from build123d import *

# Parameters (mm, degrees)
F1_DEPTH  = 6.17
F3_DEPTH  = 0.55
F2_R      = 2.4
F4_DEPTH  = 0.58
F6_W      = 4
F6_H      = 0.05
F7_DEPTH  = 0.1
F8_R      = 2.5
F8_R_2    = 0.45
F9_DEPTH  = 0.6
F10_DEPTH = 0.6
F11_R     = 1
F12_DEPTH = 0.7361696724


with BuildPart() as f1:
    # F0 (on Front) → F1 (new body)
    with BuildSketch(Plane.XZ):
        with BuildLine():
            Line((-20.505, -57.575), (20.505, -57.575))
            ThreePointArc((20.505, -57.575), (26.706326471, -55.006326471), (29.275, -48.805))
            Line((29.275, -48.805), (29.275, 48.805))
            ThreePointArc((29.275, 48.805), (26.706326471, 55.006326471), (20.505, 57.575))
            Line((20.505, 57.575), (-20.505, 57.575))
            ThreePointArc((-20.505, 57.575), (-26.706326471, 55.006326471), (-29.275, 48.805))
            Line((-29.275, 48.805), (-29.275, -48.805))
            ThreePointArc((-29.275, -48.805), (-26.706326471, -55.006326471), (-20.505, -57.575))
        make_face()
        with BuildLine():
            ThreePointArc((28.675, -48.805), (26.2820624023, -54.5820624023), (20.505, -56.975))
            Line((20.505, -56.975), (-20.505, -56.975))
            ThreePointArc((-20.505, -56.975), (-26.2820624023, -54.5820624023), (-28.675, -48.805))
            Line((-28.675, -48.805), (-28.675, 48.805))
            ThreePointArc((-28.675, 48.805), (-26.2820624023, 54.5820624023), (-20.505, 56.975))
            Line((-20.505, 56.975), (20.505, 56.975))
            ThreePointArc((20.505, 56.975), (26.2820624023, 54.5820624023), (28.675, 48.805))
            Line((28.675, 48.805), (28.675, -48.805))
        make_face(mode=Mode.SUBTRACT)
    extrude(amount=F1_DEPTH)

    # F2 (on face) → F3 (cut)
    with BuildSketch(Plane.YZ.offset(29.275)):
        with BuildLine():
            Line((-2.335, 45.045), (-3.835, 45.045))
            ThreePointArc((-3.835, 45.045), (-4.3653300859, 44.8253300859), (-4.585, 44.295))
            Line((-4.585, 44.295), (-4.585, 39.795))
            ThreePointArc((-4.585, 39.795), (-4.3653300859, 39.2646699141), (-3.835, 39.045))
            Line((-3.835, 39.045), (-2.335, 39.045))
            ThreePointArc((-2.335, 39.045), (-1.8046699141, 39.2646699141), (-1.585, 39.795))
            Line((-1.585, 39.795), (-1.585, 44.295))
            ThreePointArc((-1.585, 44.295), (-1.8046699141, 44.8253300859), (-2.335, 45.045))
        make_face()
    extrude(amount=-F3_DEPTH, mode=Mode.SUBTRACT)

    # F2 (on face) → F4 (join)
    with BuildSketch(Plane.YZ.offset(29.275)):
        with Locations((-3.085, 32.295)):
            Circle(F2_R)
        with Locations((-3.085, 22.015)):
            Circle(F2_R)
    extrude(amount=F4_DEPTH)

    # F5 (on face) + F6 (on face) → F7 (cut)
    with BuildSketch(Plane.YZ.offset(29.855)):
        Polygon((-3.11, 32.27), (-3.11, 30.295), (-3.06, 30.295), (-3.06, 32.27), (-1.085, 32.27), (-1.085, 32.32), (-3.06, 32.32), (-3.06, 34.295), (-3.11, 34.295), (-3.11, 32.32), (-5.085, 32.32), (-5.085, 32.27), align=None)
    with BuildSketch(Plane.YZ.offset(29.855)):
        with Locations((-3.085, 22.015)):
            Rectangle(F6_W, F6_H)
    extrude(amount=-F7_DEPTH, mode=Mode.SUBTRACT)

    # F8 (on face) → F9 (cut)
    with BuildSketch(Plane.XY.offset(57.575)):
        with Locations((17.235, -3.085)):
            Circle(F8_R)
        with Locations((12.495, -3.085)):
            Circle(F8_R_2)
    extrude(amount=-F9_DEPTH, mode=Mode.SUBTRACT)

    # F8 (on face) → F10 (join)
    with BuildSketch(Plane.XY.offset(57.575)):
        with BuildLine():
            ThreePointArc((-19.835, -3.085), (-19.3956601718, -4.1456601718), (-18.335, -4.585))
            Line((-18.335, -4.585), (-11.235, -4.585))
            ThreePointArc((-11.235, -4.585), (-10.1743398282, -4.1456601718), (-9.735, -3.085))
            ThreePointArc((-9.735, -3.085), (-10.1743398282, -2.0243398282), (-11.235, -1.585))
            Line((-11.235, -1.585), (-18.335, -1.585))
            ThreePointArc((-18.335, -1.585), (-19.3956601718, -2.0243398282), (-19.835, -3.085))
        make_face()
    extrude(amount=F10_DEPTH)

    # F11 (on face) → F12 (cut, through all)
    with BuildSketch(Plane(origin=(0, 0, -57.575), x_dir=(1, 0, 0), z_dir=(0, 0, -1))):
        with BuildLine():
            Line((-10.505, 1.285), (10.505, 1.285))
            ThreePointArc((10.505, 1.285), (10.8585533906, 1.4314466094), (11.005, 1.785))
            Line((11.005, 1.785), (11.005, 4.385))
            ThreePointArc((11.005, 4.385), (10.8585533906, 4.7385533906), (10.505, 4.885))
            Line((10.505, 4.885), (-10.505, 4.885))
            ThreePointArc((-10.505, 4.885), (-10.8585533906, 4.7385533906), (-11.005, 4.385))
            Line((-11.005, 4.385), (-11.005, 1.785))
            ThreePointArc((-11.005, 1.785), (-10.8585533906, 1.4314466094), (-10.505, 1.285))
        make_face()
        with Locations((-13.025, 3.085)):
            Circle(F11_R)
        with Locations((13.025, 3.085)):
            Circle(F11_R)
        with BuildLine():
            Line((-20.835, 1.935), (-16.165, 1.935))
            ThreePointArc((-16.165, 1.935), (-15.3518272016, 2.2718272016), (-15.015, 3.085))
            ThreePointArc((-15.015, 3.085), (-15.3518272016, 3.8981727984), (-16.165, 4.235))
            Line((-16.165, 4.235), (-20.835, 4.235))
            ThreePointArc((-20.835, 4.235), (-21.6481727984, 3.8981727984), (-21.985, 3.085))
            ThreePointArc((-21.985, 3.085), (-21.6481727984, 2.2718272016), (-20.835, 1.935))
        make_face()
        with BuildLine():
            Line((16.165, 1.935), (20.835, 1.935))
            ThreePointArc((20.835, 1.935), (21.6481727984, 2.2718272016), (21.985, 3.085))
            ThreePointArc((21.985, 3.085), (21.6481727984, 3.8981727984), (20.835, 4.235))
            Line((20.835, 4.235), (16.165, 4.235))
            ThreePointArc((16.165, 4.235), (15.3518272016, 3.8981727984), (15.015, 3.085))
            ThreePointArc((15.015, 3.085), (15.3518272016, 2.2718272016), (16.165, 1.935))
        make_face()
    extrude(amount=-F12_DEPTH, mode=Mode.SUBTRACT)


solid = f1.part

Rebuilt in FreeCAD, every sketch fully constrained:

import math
import FreeCAD as App
import Part
import Sketcher


def add_polygon(sketch, points):
    """Adds a closed chain of lines whose ends are joined by coincident constraints."""
    first, n = sketch.GeometryCount, len(points)
    for a, b in zip(points, points[1:] + points[:1]):
        sketch.addGeometry(Part.LineSegment(App.Vector(*a, 0), App.Vector(*b, 0)), False)
    for i in range(n):
        sketch.addConstraint(Sketcher.Constraint("Coincident", first + i, 2, first + (i + 1) % n, 1))

doc = App.newDocument("Part")
params = doc.addObject("Spreadsheet::Sheet", "Params")
for row, (alias, value) in enumerate([
    ("sketch1_radius", "8.77 mm"),
    ("sketch1_radius2", "8.17 mm"),
    ("sketch1_width", "41.01 mm"),
    ("sketch1_height", "97.61 mm"),
    ("pad1_length", "6.17 mm"),
    ("sketch2_radius", "0.75 mm"),
    ("sketch2_width", "1.5 mm"),
    ("sketch2_height", "4.5 mm"),
    ("pocket1_length", "0.55 mm"),
    ("sketch3_diameter", "4.8 mm"),
    ("pad2_length", "0.58 mm"),
    ("sketch4_width", "4 mm"),
    ("sketch4_width2", "0.05 mm"),
    ("pocket2_length", "0.1 mm"),
    ("sketch5_diameter", "5 mm"),
    ("sketch5_diameter2", "0.9 mm"),
    ("pocket3_length", "0.6 mm"),
    ("sketch6_radius", "1.5 mm"),
    ("sketch6_width", "7.1 mm"),
    ("pad3_length", "0.6 mm"),
    ("sketch7_diameter", "2 mm"),
    ("sketch7_radius", "0.5 mm"),
    ("sketch7_radius2", "1.15 mm"),
    ("sketch7_height", "2.6 mm"),
    ("sketch7_width", "21.01 mm"),
    ("pocket4_length", "0.73617 mm"),
], start=1):
    params.set(f"A{row}", alias)
    params.set(f"B{row}", "=" + value)
    params.setAlias(f"B{row}", alias)

body = doc.addObject("PartDesign::Body", "Body")

sketch1 = body.newObject("Sketcher::SketchObject", "Sketch")
sketch1.AttachmentSupport = (doc.getObject("XZ_Plane"), [""])
sketch1.MapMode = "FlatFace"
sketch1.addGeometry([
    Part.LineSegment(App.Vector(-21, -58, 0), App.Vector(21, -58, 0)),
    Part.ArcOfCircle(Part.Circle(App.Vector(21, -49, 0), App.Vector(0, 0, 1), 9), math.radians(-90), math.radians(0)),
    Part.LineSegment(App.Vector(29, -49, 0), App.Vector(29, 49, 0)),
    Part.ArcOfCircle(Part.Circle(App.Vector(21, 49, 0), App.Vector(0, 0, 1), 9), math.radians(0), math.radians(90)),
    Part.LineSegment(App.Vector(21, 58, 0), App.Vector(-21, 58, 0)),
    Part.ArcOfCircle(Part.Circle(App.Vector(-21, 49, 0), App.Vector(0, 0, 1), 9), math.radians(90), math.radians(180)),
    Part.LineSegment(App.Vector(-29, 49, 0), App.Vector(-29, -49, 0)),
    Part.ArcOfCircle(Part.Circle(App.Vector(-21, -49, 0), App.Vector(0, 0, 1), 9), math.radians(180), math.radians(270)),
    Part.LineSegment(App.Vector(29, 49, 0), App.Vector(29, -49, 0)),
    Part.ArcOfCircle(Part.Circle(App.Vector(21, -49, 0), App.Vector(0, 0, 1), 8), math.radians(-90), math.radians(0)),
    Part.LineSegment(App.Vector(21, -57, 0), App.Vector(-21, -57, 0)),
    Part.ArcOfCircle(Part.Circle(App.Vector(-21, -49, 0), App.Vector(0, 0, 1), 8), math.radians(180), math.radians(270)),
    Part.LineSegment(App.Vector(-29, -49, 0), App.Vector(-29, 49, 0)),
    Part.ArcOfCircle(Part.Circle(App.Vector(-21, 49, 0), App.Vector(0, 0, 1), 8), math.radians(90), math.radians(180)),
    Part.LineSegment(App.Vector(-21, 57, 0), App.Vector(21, 57, 0)),
    Part.ArcOfCircle(Part.Circle(App.Vector(21, 49, 0), App.Vector(0, 0, 1), 8), math.radians(0), math.radians(90)),
], False)
sketch1.addConstraint([
    Sketcher.Constraint("Tangent", 0, 2, 1, 1),
    Sketcher.Constraint("Tangent", 1, 2, 2, 1),
    Sketcher.Constraint("Tangent", 2, 2, 3, 1),
    Sketcher.Constraint("Tangent", 3, 2, 4, 1),
    Sketcher.Constraint("Tangent", 4, 2, 5, 1),
    Sketcher.Constraint("Tangent", 5, 2, 6, 1),
    Sketcher.Constraint("Tangent", 6, 2, 7, 1),
    Sketcher.Constraint("Tangent", 7, 2, 0, 1),
    Sketcher.Constraint("Tangent", 8, 2, 9, 2),
    Sketcher.Constraint("Tangent", 9, 1, 10, 1),
    Sketcher.Constraint("Tangent", 10, 2, 11, 2),
    Sketcher.Constraint("Tangent", 11, 1, 12, 1),
    Sketcher.Constraint("Tangent", 12, 2, 13, 2),
    Sketcher.Constraint("Tangent", 13, 1, 14, 1),
    Sketcher.Constraint("Tangent", 14, 2, 15, 2),
    Sketcher.Constraint("Tangent", 15, 1, 8, 1),
    Sketcher.Constraint("Horizontal", 0),
    Sketcher.Constraint("Vertical", 2),
    Sketcher.Constraint("Horizontal", 4),
    Sketcher.Constraint("Vertical", 6),
    Sketcher.Constraint("Vertical", 8),
    Sketcher.Constraint("Horizontal", 10),
    Sketcher.Constraint("Vertical", 12),
    Sketcher.Constraint("Horizontal", 14),
    Sketcher.Constraint("Coincident", 9, 3, 1, 3),
    Sketcher.Constraint("Coincident", 11, 3, 7, 3),
    Sketcher.Constraint("Coincident", 13, 3, 5, 3),
    Sketcher.Constraint("Equal", 1, 3),
    Sketcher.Constraint("Equal", 3, 5),
    Sketcher.Constraint("Equal", 5, 7),
    Sketcher.Constraint("Equal", 13, 15),
    Sketcher.Constraint("Symmetric", 1, 3, 5, 3, -1, 1),
    Sketcher.Constraint("Radius", 1, 8.77),
    Sketcher.Constraint("Radius", 9, 8.17),
    Sketcher.Constraint("DistanceX", 0, 1, 0, 2, 41.01),
    Sketcher.Constraint("DistanceY", 2, 1, 2, 2, 97.61),
])
sketch1.setExpression("Constraints[32]", "Params.sketch1_radius")
sketch1.setExpression("Constraints[33]", "Params.sketch1_radius2")
sketch1.setExpression("Constraints[34]", "Params.sketch1_width")
sketch1.setExpression("Constraints[35]", "Params.sketch1_height")
pad1 = body.newObject("PartDesign::Pad", "Pad")
pad1.Profile = sketch1
pad1.setExpression("Length", "Params.pad1_length")

sketch2 = body.newObject("Sketcher::SketchObject", "Sketch001")
sketch2.AttachmentSupport = (doc.getObject("YZ_Plane"), [""])
sketch2.MapMode = "FlatFace"
sketch2.AttachmentOffset = App.Placement(App.Vector(0, 0, 29.275), App.Rotation())
sketch2.addGeometry([
    Part.LineSegment(App.Vector(-2.3, 45, 0), App.Vector(-3.8, 45, 0)),
    Part.ArcOfCircle(Part.Circle(App.Vector(-3.8, 44.3, 0), App.Vector(0, 0, 1), 0.8), math.radians(90), math.radians(180)),
    Part.LineSegment(App.Vector(-4.6, 44.3, 0), App.Vector(-4.6, 39.8, 0)),
    Part.ArcOfCircle(Part.Circle(App.Vector(-3.8, 39.8, 0), App.Vector(0, 0, 1), 0.8), math.radians(180), math.radians(270)),
    Part.LineSegment(App.Vector(-3.8, 39, 0), App.Vector(-2.3, 39, 0)),
    Part.ArcOfCircle(Part.Circle(App.Vector(-2.3, 39.8, 0), App.Vector(0, 0, 1), 0.8), math.radians(-90), math.radians(0)),
    Part.LineSegment(App.Vector(-1.6, 39.8, 0), App.Vector(-1.6, 44.3, 0)),
    Part.ArcOfCircle(Part.Circle(App.Vector(-2.3, 44.3, 0), App.Vector(0, 0, 1), 0.8), math.radians(0), math.radians(90)),
], False)
sketch2.addConstraint([
    Sketcher.Constraint("Tangent", 0, 2, 1, 1),
    Sketcher.Constraint("Tangent", 1, 2, 2, 1),
    Sketcher.Constraint("Tangent", 2, 2, 3, 1),
    Sketcher.Constraint("Tangent", 3, 2, 4, 1),
    Sketcher.Constraint("Tangent", 4, 2, 5, 1),
    Sketcher.Constraint("Tangent", 5, 2, 6, 1),
    Sketcher.Constraint("Tangent", 6, 2, 7, 1),
    Sketcher.Constraint("Tangent", 7, 2, 0, 1),
    Sketcher.Constraint("Horizontal", 0),
    Sketcher.Constraint("Vertical", 2),
    Sketcher.Constraint("Horizontal", 4),
    Sketcher.Constraint("Vertical", 6),
    Sketcher.Constraint("Equal", 1, 3),
    Sketcher.Constraint("Equal", 3, 5),
    Sketcher.Constraint("Equal", 5, 7),
    Sketcher.Constraint("Radius", 1, 0.75),
    Sketcher.Constraint("DistanceX", 0, 2, 0, 1, 1.5),
    Sketcher.Constraint("DistanceY", 2, 2, 2, 1, 4.5),
    Sketcher.Constraint("DistanceX", 1, 3, -1, 1, 3.835),
    Sketcher.Constraint("DistanceY", -1, 1, 1, 3, 44.295),
])
sketch2.setExpression("Constraints[15]", "Params.sketch2_radius")
sketch2.setExpression("Constraints[16]", "Params.sketch2_width")
sketch2.setExpression("Constraints[17]", "Params.sketch2_height")
pocket1 = body.newObject("PartDesign::Pocket", "Pocket")
pocket1.Profile = sketch2
pocket1.setExpression("Length", "Params.pocket1_length")

sketch3 = body.newObject("Sketcher::SketchObject", "Sketch002")
sketch3.AttachmentSupport = (doc.getObject("YZ_Plane"), [""])
sketch3.MapMode = "FlatFace"
sketch3.AttachmentOffset = App.Placement(App.Vector(0, 0, 29.275), App.Rotation())
sketch3.addGeometry([
    Part.Circle(App.Vector(-3.1, 32.3, 0), App.Vector(0, 0, 1), 2.4),
    Part.Circle(App.Vector(-3.1, 22, 0), App.Vector(0, 0, 1), 2.4),
], False)
sketch3.addConstraint([
    Sketcher.Constraint("Equal", 0, 1),
    Sketcher.Constraint("Vertical", 0, 3, 1, 3),
    Sketcher.Constraint("Diameter", 0, 4.8),
    Sketcher.Constraint("DistanceY", 1, 3, 0, 3, 10.28),
    Sketcher.Constraint("DistanceX", 0, 3, -1, 1, 3.085),
    Sketcher.Constraint("DistanceY", -1, 1, 0, 3, 32.295),
])
sketch3.setExpression("Constraints[2]", "Params.sketch3_diameter")
pad2 = body.newObject("PartDesign::Pad", "Pad001")
pad2.Profile = sketch3
pad2.setExpression("Length", "Params.pad2_length")

sketch4 = body.newObject("Sketcher::SketchObject", "Sketch003")
sketch4.AttachmentSupport = (doc.getObject("YZ_Plane"), [""])
sketch4.MapMode = "FlatFace"
sketch4.AttachmentOffset = App.Placement(App.Vector(0, 0, 29.855), App.Rotation())
add_polygon(sketch4, [(-3.11, 32.27), (-3.11, 30.295), (-3.06, 30.295), (-3.06, 32.27), (-1.085, 32.27), (-1.085, 32.32), (-3.06, 32.32), (-3.06, 34.295), (-3.11, 34.295), (-3.11, 32.32), (-5.085, 32.32), (-5.085, 32.27)])
add_polygon(sketch4, [(-5.085, 22.04), (-5.085, 21.99), (-1.085, 21.99), (-1.085, 22.04)])
sketch4.addConstraint([
    Sketcher.Constraint("Vertical", 0),
    Sketcher.Constraint("Horizontal", 1),
    Sketcher.Constraint("Vertical", 2),
    Sketcher.Constraint("Horizontal", 3),
    Sketcher.Constraint("Vertical", 4),
    Sketcher.Constraint("Horizontal", 5),
    Sketcher.Constraint("Vertical", 6),
    Sketcher.Constraint("Horizontal", 7),
    Sketcher.Constraint("Vertical", 8),
    Sketcher.Constraint("Horizontal", 9),
    Sketcher.Constraint("Vertical", 10),
    Sketcher.Constraint("Horizontal", 11),
    Sketcher.Constraint("Vertical", 12),
    Sketcher.Constraint("Horizontal", 13),
    Sketcher.Constraint("Vertical", 14),
    Sketcher.Constraint("Horizontal", 15),
    Sketcher.Constraint("Horizontal", 5, 2, 8, 2),
    Sketcher.Constraint("Horizontal", 3, 2, 10, 2),
    Sketcher.Constraint("Vertical", 2, 2, 5, 2),
    Sketcher.Constraint("Vertical", 0, 2, 7, 2),
    Sketcher.Constraint("Vertical", 10, 2, 12, 2),
    Sketcher.Constraint("Vertical", 4, 2, 13, 2),
    Sketcher.Constraint("Equal", 5, 9),
    Sketcher.Constraint("Equal", 11, 0),
    Sketcher.Constraint("Equal", 7, 4),
    Sketcher.Constraint("Equal", 2, 6),
    Sketcher.Constraint("Equal", 10, 12),
    Sketcher.Constraint("DistanceX", 13, 1, 13, 2, 4.0),
    Sketcher.Constraint("DistanceX", 1, 1, 1, 2, 0.05),
    Sketcher.Constraint("DistanceX", 0, 2, -1, 1, 3.11),
    Sketcher.Constraint("DistanceY", -1, 1, 2, 2, 32.27),
    Sketcher.Constraint("DistanceY", -1, 1, 12, 2, 21.99),
])
sketch4.setExpression("Constraints[43]", "Params.sketch4_width")
sketch4.setExpression("Constraints[44]", "Params.sketch4_width2")
pocket2 = body.newObject("PartDesign::Pocket", "Pocket001")
pocket2.Profile = sketch4
pocket2.setExpression("Length", "Params.pocket2_length")

sketch5 = body.newObject("Sketcher::SketchObject", "Sketch004")
sketch5.AttachmentSupport = (doc.getObject("XY_Plane"), [""])
sketch5.MapMode = "FlatFace"
sketch5.AttachmentOffset = App.Placement(App.Vector(0, 0, 57.575), App.Rotation())
sketch5.addGeometry([
    Part.Circle(App.Vector(17.23, -3.08, 0), App.Vector(0, 0, 1), 2.5),
    Part.Circle(App.Vector(12.49, -3.08, 0), App.Vector(0, 0, 1), 0.45),
], False)
sketch5.addConstraint([
    Sketcher.Constraint("Horizontal", 0, 3, 1, 3),
    Sketcher.Constraint("Diameter", 0, 5.0),
    Sketcher.Constraint("Diameter", 1, 0.9),
    Sketcher.Constraint("DistanceX", 1, 3, 0, 3, 4.74),
    Sketcher.Constraint("DistanceX", -1, 1, 0, 3, 17.235),
    Sketcher.Constraint("DistanceY", 0, 3, -1, 1, 3.085),
])
sketch5.setExpression("Constraints[1]", "Params.sketch5_diameter")
sketch5.setExpression("Constraints[2]", "Params.sketch5_diameter2")
pocket3 = body.newObject("PartDesign::Pocket", "Pocket002")
pocket3.Profile = sketch5
pocket3.setExpression("Length", "Params.pocket3_length")

sketch6 = body.newObject("Sketcher::SketchObject", "Sketch005")
sketch6.AttachmentSupport = (doc.getObject("XY_Plane"), [""])
sketch6.MapMode = "FlatFace"
sketch6.AttachmentOffset = App.Placement(App.Vector(0, 0, 57.575), App.Rotation())
sketch6.addGeometry([
    Part.ArcOfCircle(Part.Circle(App.Vector(-18.3, -3.1, 0), App.Vector(0, 0, 1), 1.5), math.radians(180), math.radians(270)),
    Part.LineSegment(App.Vector(-18.3, -4.6, 0), App.Vector(-11.2, -4.6, 0)),
    Part.ArcOfCircle(Part.Circle(App.Vector(-11.2, -3.1, 0), App.Vector(0, 0, 1), 1.5), math.radians(-90), math.radians(0)),
    Part.ArcOfCircle(Part.Circle(App.Vector(-11.2, -3.1, 0), App.Vector(0, 0, 1), 1.5), math.radians(0), math.radians(90)),
    Part.LineSegment(App.Vector(-11.2, -1.6, 0), App.Vector(-18.3, -1.6, 0)),
    Part.ArcOfCircle(Part.Circle(App.Vector(-18.3, -3.1, 0), App.Vector(0, 0, 1), 1.5), math.radians(90), math.radians(180)),
], False)
sketch6.addConstraint([
    Sketcher.Constraint("Tangent", 0, 2, 1, 1),
    Sketcher.Constraint("Tangent", 1, 2, 2, 1),
    Sketcher.Constraint("Tangent", 2, 2, 3, 1),
    Sketcher.Constraint("Tangent", 3, 2, 4, 1),
    Sketcher.Constraint("Tangent", 4, 2, 5, 1),
    Sketcher.Constraint("Tangent", 5, 2, 0, 1),
    Sketcher.Constraint("Horizontal", 1),
    Sketcher.Constraint("Horizontal", 4),
    Sketcher.Constraint("Equal", 0, 2),
    Sketcher.Constraint("Equal", 2, 3),
    Sketcher.Constraint("Horizontal", 5, 3, 2, 2),
    Sketcher.Constraint("Horizontal", 2, 2, 5, 2),
    Sketcher.Constraint("Radius", 0, 1.5),
    Sketcher.Constraint("DistanceX", 1, 1, 1, 2, 7.1),
    Sketcher.Constraint("DistanceX", 0, 3, -1, 1, 18.335),
    Sketcher.Constraint("DistanceY", 0, 3, -1, 1, 3.085),
])
sketch6.setExpression("Constraints[12]", "Params.sketch6_radius")
sketch6.setExpression("Constraints[13]", "Params.sketch6_width")
pad3 = body.newObject("PartDesign::Pad", "Pad002")
pad3.Profile = sketch6
pad3.setExpression("Length", "Params.pad3_length")

sketch7 = body.newObject("Sketcher::SketchObject", "Sketch006")
sketch7.AttachmentSupport = (doc.getObject("XY_Plane"), [""])
sketch7.MapMode = "FlatFace"
sketch7.AttachmentOffset = App.Placement(App.Vector(0, 0, -57.575), App.Rotation())
sketch7.addGeometry([
    Part.LineSegment(App.Vector(-10.5, -1.3, 0), App.Vector(10.5, -1.3, 0)),
    Part.ArcOfCircle(Part.Circle(App.Vector(10.5, -1.8, 0), App.Vector(0, 0, 1), 0.5), math.radians(0), math.radians(90)),
    Part.LineSegment(App.Vector(11, -1.8, 0), App.Vector(11, -4.4, 0)),
    Part.ArcOfCircle(Part.Circle(App.Vector(10.5, -4.4, 0), App.Vector(0, 0, 1), 0.5), math.radians(-90), math.radians(0)),
    Part.LineSegment(App.Vector(10.5, -4.9, 0), App.Vector(-10.5, -4.9, 0)),
    Part.ArcOfCircle(Part.Circle(App.Vector(-10.5, -4.4, 0), App.Vector(0, 0, 1), 0.5), math.radians(180), math.radians(270)),
    Part.LineSegment(App.Vector(-11, -4.4, 0), App.Vector(-11, -1.8, 0)),
    Part.ArcOfCircle(Part.Circle(App.Vector(-10.5, -1.8, 0), App.Vector(0, 0, 1), 0.5), math.radians(90), math.radians(180)),
    Part.Circle(App.Vector(-13, -3.1, 0), App.Vector(0, 0, 1), 1),
    Part.Circle(App.Vector(13, -3.1, 0), App.Vector(0, 0, 1), 1),
    Part.LineSegment(App.Vector(-20.8, -1.9, 0), App.Vector(-16.2, -1.9, 0)),
    Part.ArcOfCircle(Part.Circle(App.Vector(-16.2, -3.1, 0), App.Vector(0, 0, 1), 1.1), math.radians(0), math.radians(90)),
    Part.ArcOfCircle(Part.Circle(App.Vector(-16.2, -3.1, 0), App.Vector(0, 0, 1), 1.1), math.radians(-90), math.radians(0)),
    Part.LineSegment(App.Vector(-16.2, -4.2, 0), App.Vector(-20.8, -4.2, 0)),
    Part.ArcOfCircle(Part.Circle(App.Vector(-20.8, -3.1, 0), App.Vector(0, 0, 1), 1.1), math.radians(180), math.radians(270)),
    Part.ArcOfCircle(Part.Circle(App.Vector(-20.8, -3.1, 0), App.Vector(0, 0, 1), 1.1), math.radians(90), math.radians(180)),
    Part.LineSegment(App.Vector(16.2, -1.9, 0), App.Vector(20.8, -1.9, 0)),
    Part.ArcOfCircle(Part.Circle(App.Vector(20.8, -3.1, 0), App.Vector(0, 0, 1), 1.1), math.radians(0), math.radians(90)),
    Part.ArcOfCircle(Part.Circle(App.Vector(20.8, -3.1, 0), App.Vector(0, 0, 1), 1.1), math.radians(-90), math.radians(0)),
    Part.LineSegment(App.Vector(20.8, -4.2, 0), App.Vector(16.2, -4.2, 0)),
    Part.ArcOfCircle(Part.Circle(App.Vector(16.2, -3.1, 0), App.Vector(0, 0, 1), 1.1), math.radians(180), math.radians(270)),
    Part.ArcOfCircle(Part.Circle(App.Vector(16.2, -3.1, 0), App.Vector(0, 0, 1), 1.1), math.radians(90), math.radians(180)),
], False)
sketch7.addConstraint([
    Sketcher.Constraint("Tangent", 0, 2, 1, 2),
    Sketcher.Constraint("Tangent", 1, 1, 2, 1),
    Sketcher.Constraint("Tangent", 2, 2, 3, 2),
    Sketcher.Constraint("Tangent", 3, 1, 4, 1),
    Sketcher.Constraint("Tangent", 4, 2, 5, 2),
    Sketcher.Constraint("Tangent", 5, 1, 6, 1),
    Sketcher.Constraint("Tangent", 6, 2, 7, 2),
    Sketcher.Constraint("Tangent", 7, 1, 0, 1),
    Sketcher.Constraint("Tangent", 10, 2, 11, 2),
    Sketcher.Constraint("Tangent", 11, 1, 12, 2),
    Sketcher.Constraint("Tangent", 12, 1, 13, 1),
    Sketcher.Constraint("Tangent", 13, 2, 14, 2),
    Sketcher.Constraint("Tangent", 14, 1, 15, 2),
    Sketcher.Constraint("Tangent", 15, 1, 10, 1),
    Sketcher.Constraint("Tangent", 16, 2, 17, 2),
    Sketcher.Constraint("Tangent", 17, 1, 18, 2),
    Sketcher.Constraint("Tangent", 18, 1, 19, 1),
    Sketcher.Constraint("Tangent", 19, 2, 20, 2),
    Sketcher.Constraint("Tangent", 20, 1, 21, 2),
    Sketcher.Constraint("Tangent", 21, 1, 16, 1),
    Sketcher.Constraint("Horizontal", 0),
    Sketcher.Constraint("Vertical", 2),
    Sketcher.Constraint("Horizontal", 4),
    Sketcher.Constraint("Vertical", 6),
    Sketcher.Constraint("Horizontal", 10),
    Sketcher.Constraint("Horizontal", 13),
    Sketcher.Constraint("Horizontal", 16),
    Sketcher.Constraint("Horizontal", 19),
    Sketcher.Constraint("Equal", 1, 3),
    Sketcher.Constraint("Equal", 3, 5),
    Sketcher.Constraint("Equal", 5, 7),
    Sketcher.Constraint("Equal", 8, 9),
    Sketcher.Constraint("Equal", 11, 12),
    Sketcher.Constraint("Equal", 12, 14),
    Sketcher.Constraint("Equal", 15, 17),
    Sketcher.Constraint("Equal", 17, 18),
    Sketcher.Constraint("Equal", 18, 20),
    Sketcher.Constraint("Symmetric", 8, 3, 9, 3, -2),
    Sketcher.Constraint("Symmetric", 14, 3, 17, 3, -2),
    Sketcher.Constraint("Symmetric", 11, 1, 20, 1, -2),
    Sketcher.Constraint("Horizontal", 9, 3, 11, 3),
    Sketcher.Constraint("Horizontal", 21, 3, 11, 1),
    Sketcher.Constraint("Horizontal", 11, 1, 14, 1),
    Sketcher.Constraint("Horizontal", 14, 1, 17, 1),
    Sketcher.Constraint("Diameter", 8, 2.0),
    Sketcher.Constraint("Radius", 1, 0.5),
    Sketcher.Constraint("Radius", 11, 1.15),
    Sketcher.Constraint("DistanceY", 2, 2, 2, 1, 2.6),
    Sketcher.Constraint("DistanceX", 0, 1, 0, 2, 21.01),
    Sketcher.Constraint("DistanceX", 10, 1, 10, 2, 4.67),
    Sketcher.Constraint("DistanceY", 5, 3, 8, 3, 1.3),
    Sketcher.Constraint("DistanceX", 8, 3, 5, 3, 2.52),
    Sketcher.Constraint("DistanceX", 1, 3, 9, 3, 2.52),
    Sketcher.Constraint("DistanceX", 11, 3, 8, 3, 3.14),
    Sketcher.Constraint("DistanceY", 1, 3, -1, 1, 1.785),
])
sketch7.setExpression("Constraints[44]", "Params.sketch7_diameter")
sketch7.setExpression("Constraints[45]", "Params.sketch7_radius")
sketch7.setExpression("Constraints[46]", "Params.sketch7_radius2")
sketch7.setExpression("Constraints[47]", "Params.sketch7_height")
sketch7.setExpression("Constraints[48]", "Params.sketch7_width")
pocket4 = body.newObject("PartDesign::Pocket", "Pocket003")
pocket4.Profile = sketch7
pocket4.setExpression("Length", "Params.pocket4_length")
pocket4.Reversed = True

doc.recompute()
